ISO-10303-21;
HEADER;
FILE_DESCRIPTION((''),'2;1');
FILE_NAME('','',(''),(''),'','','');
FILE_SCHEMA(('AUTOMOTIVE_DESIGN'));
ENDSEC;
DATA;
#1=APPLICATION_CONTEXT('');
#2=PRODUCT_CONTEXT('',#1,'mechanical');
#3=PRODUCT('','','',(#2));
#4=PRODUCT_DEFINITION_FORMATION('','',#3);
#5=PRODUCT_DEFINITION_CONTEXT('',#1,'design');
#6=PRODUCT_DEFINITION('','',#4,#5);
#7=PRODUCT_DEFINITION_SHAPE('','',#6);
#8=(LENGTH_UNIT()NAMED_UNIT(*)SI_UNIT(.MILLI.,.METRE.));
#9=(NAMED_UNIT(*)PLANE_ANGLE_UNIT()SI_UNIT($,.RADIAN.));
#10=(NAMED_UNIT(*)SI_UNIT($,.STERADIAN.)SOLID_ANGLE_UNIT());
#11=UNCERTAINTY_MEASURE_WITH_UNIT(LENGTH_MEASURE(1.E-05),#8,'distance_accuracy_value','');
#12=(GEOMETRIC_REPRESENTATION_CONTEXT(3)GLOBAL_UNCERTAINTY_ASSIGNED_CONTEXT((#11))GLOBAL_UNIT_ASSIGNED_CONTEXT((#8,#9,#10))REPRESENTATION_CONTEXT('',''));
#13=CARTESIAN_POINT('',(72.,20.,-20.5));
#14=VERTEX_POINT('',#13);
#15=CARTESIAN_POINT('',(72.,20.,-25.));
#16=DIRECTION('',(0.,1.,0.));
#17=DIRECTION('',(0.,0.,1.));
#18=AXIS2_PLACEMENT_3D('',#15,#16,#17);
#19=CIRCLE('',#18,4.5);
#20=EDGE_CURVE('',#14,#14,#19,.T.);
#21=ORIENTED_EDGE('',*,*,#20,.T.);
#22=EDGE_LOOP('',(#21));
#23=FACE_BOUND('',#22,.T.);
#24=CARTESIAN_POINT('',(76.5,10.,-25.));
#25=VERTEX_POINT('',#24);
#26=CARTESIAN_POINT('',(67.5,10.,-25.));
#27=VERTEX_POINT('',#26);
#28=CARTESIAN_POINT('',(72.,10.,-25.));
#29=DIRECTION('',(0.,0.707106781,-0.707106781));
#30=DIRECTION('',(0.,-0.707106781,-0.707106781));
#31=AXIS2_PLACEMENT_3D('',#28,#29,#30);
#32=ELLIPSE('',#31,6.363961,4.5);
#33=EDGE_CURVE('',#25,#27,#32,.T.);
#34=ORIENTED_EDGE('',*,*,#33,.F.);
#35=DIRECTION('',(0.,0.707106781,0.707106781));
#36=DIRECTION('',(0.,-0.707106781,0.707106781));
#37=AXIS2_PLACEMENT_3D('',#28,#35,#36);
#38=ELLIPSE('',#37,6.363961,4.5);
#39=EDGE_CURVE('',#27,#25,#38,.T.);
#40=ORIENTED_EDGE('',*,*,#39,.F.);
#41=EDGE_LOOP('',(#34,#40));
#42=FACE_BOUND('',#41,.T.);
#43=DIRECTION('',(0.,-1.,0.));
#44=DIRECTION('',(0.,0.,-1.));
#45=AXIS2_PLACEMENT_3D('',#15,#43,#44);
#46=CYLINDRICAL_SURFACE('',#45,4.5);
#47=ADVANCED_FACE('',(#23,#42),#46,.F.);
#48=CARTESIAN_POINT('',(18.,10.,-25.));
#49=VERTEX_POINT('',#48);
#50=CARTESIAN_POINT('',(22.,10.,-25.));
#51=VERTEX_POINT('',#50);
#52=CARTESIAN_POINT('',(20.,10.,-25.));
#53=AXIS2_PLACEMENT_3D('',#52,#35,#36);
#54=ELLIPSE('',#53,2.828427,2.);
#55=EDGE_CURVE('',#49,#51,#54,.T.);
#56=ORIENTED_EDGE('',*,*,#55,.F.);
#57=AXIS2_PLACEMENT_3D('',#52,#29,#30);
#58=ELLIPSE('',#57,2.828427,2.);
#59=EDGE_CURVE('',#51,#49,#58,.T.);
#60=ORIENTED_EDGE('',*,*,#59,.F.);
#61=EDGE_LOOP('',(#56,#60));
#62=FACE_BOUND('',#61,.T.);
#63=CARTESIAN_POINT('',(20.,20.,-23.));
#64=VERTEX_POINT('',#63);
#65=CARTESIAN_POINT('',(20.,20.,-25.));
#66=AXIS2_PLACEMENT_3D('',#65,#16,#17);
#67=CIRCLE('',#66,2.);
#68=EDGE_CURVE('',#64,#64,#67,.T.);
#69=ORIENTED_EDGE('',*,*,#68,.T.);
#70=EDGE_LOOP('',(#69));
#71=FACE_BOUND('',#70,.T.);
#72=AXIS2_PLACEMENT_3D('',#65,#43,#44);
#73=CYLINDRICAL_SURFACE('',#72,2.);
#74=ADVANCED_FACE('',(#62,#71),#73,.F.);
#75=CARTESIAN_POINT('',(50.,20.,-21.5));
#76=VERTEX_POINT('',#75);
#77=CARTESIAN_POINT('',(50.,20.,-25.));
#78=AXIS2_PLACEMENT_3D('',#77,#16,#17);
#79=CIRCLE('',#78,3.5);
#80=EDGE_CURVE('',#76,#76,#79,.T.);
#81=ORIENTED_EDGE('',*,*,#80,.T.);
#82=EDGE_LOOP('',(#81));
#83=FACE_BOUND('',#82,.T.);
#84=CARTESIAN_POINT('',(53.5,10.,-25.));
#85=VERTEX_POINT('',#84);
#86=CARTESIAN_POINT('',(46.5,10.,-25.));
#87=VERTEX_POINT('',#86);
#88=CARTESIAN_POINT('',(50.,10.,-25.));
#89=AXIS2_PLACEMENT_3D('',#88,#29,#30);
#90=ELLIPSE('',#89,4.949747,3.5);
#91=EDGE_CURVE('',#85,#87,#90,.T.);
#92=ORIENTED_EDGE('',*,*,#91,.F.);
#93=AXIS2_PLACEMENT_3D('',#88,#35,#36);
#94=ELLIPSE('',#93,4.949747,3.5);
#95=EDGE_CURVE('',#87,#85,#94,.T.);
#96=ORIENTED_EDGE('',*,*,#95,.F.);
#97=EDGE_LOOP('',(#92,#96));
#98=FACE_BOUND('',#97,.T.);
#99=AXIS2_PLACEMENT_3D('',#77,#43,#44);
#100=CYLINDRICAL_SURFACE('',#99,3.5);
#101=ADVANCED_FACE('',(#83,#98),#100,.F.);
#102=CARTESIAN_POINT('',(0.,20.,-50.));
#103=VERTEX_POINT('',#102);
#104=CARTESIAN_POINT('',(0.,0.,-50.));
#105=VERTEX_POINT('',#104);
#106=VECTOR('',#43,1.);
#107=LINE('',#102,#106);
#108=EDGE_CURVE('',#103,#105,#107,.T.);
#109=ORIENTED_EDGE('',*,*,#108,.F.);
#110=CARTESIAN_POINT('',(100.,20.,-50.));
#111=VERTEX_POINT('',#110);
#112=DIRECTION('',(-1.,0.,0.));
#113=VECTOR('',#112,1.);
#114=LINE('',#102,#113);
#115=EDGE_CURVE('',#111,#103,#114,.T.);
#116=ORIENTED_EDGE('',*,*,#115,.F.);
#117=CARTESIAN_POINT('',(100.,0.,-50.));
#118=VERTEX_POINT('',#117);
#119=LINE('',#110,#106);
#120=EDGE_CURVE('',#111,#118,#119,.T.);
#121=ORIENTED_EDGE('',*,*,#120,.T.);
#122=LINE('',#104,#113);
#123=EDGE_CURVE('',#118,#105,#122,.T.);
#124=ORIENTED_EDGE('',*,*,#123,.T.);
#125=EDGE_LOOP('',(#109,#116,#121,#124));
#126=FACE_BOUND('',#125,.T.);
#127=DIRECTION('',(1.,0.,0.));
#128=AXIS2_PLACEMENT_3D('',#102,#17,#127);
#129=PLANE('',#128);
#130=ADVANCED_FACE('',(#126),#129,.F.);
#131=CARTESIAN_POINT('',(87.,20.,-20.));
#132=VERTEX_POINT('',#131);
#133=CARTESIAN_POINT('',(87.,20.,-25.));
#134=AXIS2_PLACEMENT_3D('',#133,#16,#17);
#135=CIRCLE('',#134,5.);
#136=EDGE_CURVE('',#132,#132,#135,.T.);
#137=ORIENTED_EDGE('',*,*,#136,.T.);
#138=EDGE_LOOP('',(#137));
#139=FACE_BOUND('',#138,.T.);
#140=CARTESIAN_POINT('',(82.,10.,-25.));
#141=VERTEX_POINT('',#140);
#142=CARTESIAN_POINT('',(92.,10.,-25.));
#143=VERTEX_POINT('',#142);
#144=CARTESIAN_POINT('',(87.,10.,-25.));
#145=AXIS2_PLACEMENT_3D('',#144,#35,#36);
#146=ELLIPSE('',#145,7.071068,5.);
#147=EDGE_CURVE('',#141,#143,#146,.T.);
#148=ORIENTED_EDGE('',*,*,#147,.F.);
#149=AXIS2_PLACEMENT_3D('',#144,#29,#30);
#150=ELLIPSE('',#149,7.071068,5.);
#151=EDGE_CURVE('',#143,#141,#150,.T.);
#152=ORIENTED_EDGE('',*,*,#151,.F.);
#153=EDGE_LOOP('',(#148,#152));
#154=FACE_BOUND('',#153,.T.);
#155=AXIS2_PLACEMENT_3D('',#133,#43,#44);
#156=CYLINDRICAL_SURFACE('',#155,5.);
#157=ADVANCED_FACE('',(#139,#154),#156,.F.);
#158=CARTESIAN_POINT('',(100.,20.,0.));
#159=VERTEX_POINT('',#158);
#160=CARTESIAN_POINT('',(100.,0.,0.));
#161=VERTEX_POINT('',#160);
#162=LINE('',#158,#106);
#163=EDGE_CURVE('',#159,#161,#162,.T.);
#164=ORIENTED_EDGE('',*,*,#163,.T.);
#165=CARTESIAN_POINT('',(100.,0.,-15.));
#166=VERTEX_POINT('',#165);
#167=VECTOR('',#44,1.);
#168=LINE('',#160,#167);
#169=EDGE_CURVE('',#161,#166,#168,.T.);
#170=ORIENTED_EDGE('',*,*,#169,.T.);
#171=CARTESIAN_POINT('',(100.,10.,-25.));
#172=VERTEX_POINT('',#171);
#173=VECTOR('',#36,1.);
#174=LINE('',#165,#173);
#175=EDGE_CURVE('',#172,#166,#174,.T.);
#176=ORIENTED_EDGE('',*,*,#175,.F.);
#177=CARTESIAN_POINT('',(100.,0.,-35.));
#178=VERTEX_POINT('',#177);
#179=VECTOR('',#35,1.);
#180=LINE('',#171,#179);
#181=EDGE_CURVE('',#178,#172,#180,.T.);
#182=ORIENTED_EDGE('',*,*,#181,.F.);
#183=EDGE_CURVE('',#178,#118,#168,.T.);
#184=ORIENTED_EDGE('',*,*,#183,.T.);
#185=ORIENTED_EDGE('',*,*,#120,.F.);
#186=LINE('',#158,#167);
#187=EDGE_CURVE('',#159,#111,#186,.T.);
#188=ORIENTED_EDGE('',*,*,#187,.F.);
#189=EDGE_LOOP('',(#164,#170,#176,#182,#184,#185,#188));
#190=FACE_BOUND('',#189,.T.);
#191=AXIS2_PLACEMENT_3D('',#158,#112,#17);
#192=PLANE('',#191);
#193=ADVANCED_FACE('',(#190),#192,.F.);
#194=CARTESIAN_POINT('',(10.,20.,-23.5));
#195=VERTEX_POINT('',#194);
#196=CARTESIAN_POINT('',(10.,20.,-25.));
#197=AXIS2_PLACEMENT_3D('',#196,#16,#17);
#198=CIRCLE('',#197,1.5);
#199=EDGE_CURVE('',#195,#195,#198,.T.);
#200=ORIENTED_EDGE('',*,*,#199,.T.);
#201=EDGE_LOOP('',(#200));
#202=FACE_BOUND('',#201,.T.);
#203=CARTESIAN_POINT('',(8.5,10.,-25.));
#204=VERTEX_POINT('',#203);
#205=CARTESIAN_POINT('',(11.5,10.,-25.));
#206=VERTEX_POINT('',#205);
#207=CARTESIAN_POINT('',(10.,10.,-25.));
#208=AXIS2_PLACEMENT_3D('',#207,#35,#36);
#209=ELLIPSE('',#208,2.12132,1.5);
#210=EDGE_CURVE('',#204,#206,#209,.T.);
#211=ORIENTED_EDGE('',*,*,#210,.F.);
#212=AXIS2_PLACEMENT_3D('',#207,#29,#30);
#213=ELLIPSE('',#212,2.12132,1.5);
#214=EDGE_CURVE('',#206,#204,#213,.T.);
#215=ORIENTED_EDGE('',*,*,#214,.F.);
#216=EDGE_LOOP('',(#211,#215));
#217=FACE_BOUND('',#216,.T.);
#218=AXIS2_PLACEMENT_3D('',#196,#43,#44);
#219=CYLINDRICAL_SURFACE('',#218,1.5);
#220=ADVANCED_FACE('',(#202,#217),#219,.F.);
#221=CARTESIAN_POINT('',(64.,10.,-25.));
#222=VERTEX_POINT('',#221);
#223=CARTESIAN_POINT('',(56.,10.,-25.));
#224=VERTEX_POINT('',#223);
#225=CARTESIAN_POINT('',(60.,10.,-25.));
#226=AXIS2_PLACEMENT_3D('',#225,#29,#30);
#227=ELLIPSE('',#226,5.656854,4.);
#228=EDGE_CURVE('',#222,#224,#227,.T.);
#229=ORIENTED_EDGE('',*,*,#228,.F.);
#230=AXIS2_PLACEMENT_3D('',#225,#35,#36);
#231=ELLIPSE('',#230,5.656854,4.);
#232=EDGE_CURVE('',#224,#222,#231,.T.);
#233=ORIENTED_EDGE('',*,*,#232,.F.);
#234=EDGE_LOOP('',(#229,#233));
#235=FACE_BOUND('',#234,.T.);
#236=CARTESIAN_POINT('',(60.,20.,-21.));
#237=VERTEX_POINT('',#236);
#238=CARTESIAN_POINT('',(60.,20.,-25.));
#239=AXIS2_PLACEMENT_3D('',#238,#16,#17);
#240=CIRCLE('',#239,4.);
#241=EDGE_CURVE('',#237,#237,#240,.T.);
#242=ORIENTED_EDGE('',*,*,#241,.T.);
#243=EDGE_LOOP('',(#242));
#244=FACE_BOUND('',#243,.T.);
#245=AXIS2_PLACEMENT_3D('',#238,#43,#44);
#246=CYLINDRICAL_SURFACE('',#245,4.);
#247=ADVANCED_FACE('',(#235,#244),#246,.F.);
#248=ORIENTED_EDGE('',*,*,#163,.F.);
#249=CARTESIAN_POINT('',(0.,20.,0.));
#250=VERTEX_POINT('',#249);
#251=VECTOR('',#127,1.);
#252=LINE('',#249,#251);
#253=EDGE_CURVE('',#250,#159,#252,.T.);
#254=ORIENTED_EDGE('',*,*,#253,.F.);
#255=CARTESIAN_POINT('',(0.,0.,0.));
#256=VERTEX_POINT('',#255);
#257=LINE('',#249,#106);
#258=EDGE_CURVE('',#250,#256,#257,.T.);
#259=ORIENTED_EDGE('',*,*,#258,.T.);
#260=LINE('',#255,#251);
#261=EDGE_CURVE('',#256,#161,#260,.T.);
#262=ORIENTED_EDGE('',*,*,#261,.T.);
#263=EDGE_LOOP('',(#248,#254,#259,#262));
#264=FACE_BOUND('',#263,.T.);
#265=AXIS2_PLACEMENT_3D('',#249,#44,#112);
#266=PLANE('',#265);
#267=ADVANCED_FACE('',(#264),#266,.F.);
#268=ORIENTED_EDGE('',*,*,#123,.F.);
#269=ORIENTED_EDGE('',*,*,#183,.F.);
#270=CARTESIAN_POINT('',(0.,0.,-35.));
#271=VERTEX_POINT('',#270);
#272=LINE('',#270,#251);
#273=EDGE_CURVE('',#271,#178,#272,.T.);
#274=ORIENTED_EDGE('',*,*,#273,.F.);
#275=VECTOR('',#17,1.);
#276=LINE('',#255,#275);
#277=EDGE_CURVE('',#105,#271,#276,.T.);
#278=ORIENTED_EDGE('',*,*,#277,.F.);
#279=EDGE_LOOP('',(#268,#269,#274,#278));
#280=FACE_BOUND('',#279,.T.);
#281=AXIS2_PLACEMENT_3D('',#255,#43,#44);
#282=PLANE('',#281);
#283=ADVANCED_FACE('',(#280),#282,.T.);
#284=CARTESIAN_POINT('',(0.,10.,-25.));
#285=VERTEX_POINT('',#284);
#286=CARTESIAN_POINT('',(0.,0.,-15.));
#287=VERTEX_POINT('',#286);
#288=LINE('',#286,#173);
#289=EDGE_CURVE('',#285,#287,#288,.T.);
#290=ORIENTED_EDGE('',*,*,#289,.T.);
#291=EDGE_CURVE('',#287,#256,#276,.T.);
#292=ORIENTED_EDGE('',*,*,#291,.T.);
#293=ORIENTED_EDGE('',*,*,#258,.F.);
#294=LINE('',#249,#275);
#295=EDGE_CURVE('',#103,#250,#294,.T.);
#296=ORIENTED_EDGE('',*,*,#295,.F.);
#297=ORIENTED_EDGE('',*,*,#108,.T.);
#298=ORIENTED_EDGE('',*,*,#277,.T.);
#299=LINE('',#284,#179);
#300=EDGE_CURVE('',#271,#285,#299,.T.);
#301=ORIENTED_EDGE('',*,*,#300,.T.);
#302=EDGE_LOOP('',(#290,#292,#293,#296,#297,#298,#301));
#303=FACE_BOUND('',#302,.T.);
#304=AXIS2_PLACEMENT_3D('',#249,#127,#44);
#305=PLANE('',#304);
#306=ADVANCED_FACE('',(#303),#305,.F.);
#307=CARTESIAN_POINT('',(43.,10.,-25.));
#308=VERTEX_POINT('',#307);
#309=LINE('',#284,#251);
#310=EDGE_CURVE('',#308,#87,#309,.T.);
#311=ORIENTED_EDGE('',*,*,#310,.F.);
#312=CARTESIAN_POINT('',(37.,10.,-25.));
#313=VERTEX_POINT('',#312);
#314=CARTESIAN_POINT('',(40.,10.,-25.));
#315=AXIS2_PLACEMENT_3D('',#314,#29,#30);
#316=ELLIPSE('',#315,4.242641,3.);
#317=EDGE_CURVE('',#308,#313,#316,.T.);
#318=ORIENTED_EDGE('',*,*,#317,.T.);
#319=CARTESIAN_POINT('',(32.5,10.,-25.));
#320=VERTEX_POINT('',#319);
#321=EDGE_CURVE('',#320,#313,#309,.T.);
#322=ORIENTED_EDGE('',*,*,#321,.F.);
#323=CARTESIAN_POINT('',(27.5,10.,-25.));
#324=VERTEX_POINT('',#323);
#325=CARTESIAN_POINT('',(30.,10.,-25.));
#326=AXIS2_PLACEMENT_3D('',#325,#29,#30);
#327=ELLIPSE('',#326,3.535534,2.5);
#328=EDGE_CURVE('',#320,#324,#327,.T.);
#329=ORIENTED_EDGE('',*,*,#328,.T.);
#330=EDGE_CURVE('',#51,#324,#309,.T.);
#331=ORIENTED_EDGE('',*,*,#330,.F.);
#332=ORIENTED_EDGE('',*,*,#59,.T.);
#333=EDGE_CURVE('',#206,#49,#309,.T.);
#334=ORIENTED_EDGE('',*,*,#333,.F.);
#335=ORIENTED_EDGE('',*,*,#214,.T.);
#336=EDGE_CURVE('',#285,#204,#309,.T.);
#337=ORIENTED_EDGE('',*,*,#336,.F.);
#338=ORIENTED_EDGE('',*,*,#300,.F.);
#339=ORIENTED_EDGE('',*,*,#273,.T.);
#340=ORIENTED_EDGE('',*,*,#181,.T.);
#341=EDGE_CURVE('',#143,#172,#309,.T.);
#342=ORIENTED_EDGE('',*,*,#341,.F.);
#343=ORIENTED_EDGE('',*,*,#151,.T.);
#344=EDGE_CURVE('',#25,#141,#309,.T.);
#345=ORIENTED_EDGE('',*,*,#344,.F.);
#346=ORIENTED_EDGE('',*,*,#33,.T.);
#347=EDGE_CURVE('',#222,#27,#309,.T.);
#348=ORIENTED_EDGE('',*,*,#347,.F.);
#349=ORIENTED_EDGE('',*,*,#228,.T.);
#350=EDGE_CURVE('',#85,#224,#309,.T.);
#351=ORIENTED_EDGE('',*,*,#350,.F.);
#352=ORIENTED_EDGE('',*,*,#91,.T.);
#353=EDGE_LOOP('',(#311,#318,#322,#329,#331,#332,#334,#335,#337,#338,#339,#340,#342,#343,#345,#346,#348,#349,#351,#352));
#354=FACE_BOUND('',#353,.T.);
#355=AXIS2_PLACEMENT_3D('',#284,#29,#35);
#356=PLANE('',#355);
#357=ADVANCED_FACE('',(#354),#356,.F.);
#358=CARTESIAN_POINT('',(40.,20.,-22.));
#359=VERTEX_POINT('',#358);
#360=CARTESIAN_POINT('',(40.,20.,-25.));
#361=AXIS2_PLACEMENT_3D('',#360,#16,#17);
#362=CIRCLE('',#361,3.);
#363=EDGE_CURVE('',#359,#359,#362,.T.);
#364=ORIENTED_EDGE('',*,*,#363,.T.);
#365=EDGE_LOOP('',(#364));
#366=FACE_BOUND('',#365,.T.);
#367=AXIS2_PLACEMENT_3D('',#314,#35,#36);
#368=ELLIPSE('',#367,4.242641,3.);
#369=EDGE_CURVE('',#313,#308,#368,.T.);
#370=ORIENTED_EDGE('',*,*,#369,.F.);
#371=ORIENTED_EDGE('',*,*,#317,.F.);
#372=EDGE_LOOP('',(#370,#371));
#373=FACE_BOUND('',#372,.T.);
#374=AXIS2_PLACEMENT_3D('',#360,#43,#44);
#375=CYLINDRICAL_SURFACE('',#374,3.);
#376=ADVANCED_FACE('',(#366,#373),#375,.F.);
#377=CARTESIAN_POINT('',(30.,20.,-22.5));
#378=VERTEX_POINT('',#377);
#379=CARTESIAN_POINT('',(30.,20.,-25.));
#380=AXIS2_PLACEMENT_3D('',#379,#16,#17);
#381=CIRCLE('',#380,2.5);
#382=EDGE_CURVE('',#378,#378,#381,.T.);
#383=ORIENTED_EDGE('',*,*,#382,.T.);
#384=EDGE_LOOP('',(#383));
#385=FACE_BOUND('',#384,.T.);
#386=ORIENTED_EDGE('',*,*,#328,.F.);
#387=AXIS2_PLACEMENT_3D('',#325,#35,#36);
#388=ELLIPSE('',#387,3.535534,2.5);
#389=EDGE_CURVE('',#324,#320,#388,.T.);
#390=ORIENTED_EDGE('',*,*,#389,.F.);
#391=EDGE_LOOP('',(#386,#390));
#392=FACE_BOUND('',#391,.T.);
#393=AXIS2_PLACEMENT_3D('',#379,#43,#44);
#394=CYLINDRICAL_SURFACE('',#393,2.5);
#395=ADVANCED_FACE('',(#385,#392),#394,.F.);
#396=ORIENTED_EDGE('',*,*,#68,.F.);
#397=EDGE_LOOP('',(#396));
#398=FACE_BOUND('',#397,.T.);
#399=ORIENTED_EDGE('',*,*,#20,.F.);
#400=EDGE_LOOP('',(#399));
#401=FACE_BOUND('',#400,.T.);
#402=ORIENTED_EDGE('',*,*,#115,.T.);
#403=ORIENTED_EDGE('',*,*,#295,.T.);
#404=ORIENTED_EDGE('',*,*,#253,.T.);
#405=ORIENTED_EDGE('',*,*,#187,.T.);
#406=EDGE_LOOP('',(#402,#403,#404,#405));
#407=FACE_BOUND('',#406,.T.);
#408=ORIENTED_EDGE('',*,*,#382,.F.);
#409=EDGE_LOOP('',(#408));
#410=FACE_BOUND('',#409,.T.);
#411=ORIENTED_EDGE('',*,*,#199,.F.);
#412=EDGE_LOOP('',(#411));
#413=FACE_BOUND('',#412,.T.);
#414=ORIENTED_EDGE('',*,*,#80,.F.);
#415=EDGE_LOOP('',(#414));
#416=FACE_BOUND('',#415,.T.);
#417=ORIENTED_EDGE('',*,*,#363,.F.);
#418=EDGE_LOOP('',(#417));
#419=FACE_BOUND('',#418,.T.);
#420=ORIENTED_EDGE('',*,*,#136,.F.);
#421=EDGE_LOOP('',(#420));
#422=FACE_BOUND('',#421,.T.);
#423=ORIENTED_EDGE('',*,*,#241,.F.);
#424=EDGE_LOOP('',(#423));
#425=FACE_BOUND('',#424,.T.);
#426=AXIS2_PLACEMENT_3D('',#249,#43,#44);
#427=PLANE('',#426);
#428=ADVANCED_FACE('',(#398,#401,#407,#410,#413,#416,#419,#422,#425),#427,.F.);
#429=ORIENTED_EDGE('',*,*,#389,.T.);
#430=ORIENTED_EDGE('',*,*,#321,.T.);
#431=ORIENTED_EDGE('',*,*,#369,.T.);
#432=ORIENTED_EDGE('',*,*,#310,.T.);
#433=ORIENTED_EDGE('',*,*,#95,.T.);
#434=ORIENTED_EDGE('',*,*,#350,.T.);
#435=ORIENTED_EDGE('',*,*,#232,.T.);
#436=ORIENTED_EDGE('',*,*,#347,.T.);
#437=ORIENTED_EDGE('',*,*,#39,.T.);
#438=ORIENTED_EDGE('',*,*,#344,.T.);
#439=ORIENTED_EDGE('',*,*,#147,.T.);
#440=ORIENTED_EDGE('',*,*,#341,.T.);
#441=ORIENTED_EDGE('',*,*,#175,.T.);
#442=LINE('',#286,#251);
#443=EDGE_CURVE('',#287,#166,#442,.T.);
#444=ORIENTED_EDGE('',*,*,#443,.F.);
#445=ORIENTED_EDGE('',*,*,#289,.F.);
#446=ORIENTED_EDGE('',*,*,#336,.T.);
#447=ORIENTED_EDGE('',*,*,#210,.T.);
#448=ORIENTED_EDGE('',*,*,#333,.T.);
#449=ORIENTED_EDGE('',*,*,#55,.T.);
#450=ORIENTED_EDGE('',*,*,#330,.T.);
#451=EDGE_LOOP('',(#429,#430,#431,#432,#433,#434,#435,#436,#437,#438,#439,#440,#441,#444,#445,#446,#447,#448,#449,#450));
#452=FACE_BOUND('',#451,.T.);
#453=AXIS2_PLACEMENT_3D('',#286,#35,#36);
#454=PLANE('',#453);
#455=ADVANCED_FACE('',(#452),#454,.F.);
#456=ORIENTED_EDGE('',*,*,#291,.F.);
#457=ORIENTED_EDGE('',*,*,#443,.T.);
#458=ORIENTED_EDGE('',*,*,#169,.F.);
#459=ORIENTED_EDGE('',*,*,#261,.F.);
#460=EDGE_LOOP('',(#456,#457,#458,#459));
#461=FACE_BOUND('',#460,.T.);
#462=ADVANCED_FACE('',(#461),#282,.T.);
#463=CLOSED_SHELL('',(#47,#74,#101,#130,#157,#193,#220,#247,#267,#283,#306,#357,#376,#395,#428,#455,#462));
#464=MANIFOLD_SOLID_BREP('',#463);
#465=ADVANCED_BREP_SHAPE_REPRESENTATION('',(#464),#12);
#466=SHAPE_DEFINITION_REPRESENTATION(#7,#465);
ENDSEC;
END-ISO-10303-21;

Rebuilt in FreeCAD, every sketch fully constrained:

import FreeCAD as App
import Part
import Sketcher

doc = App.newDocument("Part")
body = doc.addObject("PartDesign::Body", "Body")

# Sketch on XZ plane
sketch1 = doc.addObject("Sketcher::SketchObject", "Sketch")
body.addObject(sketch1)
sketch1.AttachmentSupport = (doc.XZ_Plane, [""])
sketch1.MapMode = "FlatFace"
sketch1.addGeometry([
    Part.LineSegment(App.Vector(0, -50, 0), App.Vector(0, 0, 0)),  # 0
    Part.LineSegment(App.Vector(0, 0, 0), App.Vector(100, 0, 0)),  # 1
    Part.LineSegment(App.Vector(100, 0, 0), App.Vector(100, -50, 0)),  # 2
    Part.LineSegment(App.Vector(100, -50, 0), App.Vector(0, -50, 0)),  # 3
    Part.Circle(App.Vector(10, -25, 0), App.Vector(0, 0, 1), 1.5),  # 4
    Part.Circle(App.Vector(20, -25, 0), App.Vector(0, 0, 1), 2),  # 5
    Part.Circle(App.Vector(30, -25, 0), App.Vector(0, 0, 1), 2.5),  # 6
    Part.Circle(App.Vector(40, -25, 0), App.Vector(0, 0, 1), 3),  # 7
    Part.Circle(App.Vector(50, -25, 0), App.Vector(0, 0, 1), 3.5),  # 8
    Part.Circle(App.Vector(60, -25, 0), App.Vector(0, 0, 1), 4),  # 9
    Part.Circle(App.Vector(72, -25, 0), App.Vector(0, 0, 1), 4.5),  # 10
    Part.Circle(App.Vector(87, -25, 0), App.Vector(0, 0, 1), 5),  # 11
], False)
sketch1.addConstraint([
    Sketcher.Constraint("Coincident", 0, 2, 1, 1),
    Sketcher.Constraint("Coincident", 1, 2, 2, 1),
    Sketcher.Constraint("Coincident", 2, 2, 3, 1),
    Sketcher.Constraint("Coincident", 3, 2, 0, 1),
    Sketcher.Constraint("Vertical", 0),
    Sketcher.Constraint("Horizontal", 1),
    Sketcher.Constraint("Vertical", 2),
    Sketcher.Constraint("Horizontal", 3),
    Sketcher.Constraint("Coincident", 0, 2, -1, 1),
    Sketcher.Constraint("Horizontal", 4, 3, 5, 3),
    Sketcher.Constraint("Horizontal", 5, 3, 6, 3),
    Sketcher.Constraint("Horizontal", 6, 3, 7, 3),
    Sketcher.Constraint("Horizontal", 7, 3, 8, 3),
    Sketcher.Constraint("Horizontal", 8, 3, 9, 3),
    Sketcher.Constraint("Horizontal", 9, 3, 10, 3),
    Sketcher.Constraint("Horizontal", 10, 3, 11, 3),
    Sketcher.Constraint("Diameter", 4, 3.0),
    Sketcher.Constraint("Diameter", 5, 4.0),
    Sketcher.Constraint("Diameter", 6, 5.0),
    Sketcher.Constraint("Diameter", 7, 6.0),
    Sketcher.Constraint("Diameter", 8, 7.0),
    Sketcher.Constraint("Diameter", 9, 8.0),
    Sketcher.Constraint("Diameter", 10, 9.0),
    Sketcher.Constraint("Diameter", 11, 10.0),
    Sketcher.Constraint("DistanceX", 1, 1, 1, 2, 100.0),
    Sketcher.Constraint("DistanceY", 0, 1, 0, 2, 50.0),
    Sketcher.Constraint("DistanceX", -1, 1, 4, 3, 10.0),
    Sketcher.Constraint("DistanceY", 4, 3, -1, 1, 25.0),
    Sketcher.Constraint("DistanceX", -1, 1, 5, 3, 20.0),
    Sketcher.Constraint("DistanceX", -1, 1, 6, 3, 30.0),
    Sketcher.Constraint("DistanceX", -1, 1, 7, 3, 40.0),
    Sketcher.Constraint("DistanceX", -1, 1, 8, 3, 50.0),
    Sketcher.Constraint("DistanceX", -1, 1, 9, 3, 60.0),
    Sketcher.Constraint("DistanceX", -1, 1, 10, 3, 72.0),
    Sketcher.Constraint("DistanceX", -1, 1, 11, 3, 87.0),
])
pad1 = doc.addObject("PartDesign::Pad", "Pad")
body.addObject(pad1)
pad1.Profile = sketch1
pad1.Length = 20
pad1.Reversed = True

# Sketch on YZ plane
sketch2 = doc.addObject("Sketcher::SketchObject", "Sketch001")
body.addObject(sketch2)
sketch2.AttachmentSupport = (doc.YZ_Plane, [""])
sketch2.MapMode = "FlatFace"
sketch2.AttachmentOffset = App.Placement(App.Vector(0, 0, 100), App.Rotation())
sketch2.addGeometry([
    Part.LineSegment(App.Vector(10, -25, 0), App.Vector(0, -15, 0)),
    Part.LineSegment(App.Vector(0, -15, 0), App.Vector(0, -35, 0)),
    Part.LineSegment(App.Vector(0, -35, 0), App.Vector(10, -25, 0)),
], False)
sketch2.addConstraint([
    Sketcher.Constraint("Coincident", 0, 2, 1, 1),
    Sketcher.Constraint("Coincident", 1, 2, 2, 1),
    Sketcher.Constraint("Coincident", 2, 2, 0, 1),
    Sketcher.Constraint("Vertical", 1),
    Sketcher.Constraint("PointOnObject", 0, 2, -2),
    Sketcher.Constraint("Perpendicular", 0, 2),
    Sketcher.Constraint("Equal", 0, 2),
    Sketcher.Constraint("DistanceY", 1, 2, 1, 1, 20.0),
    Sketcher.Constraint("DistanceY", 0, 2, -1, 1, 15.0),
])
pocket1 = doc.addObject("PartDesign::Pocket", "Pocket")
body.addObject(pocket1)
pocket1.Profile = sketch2
pocket1.Type = "ThroughAll"

doc.recompute()
